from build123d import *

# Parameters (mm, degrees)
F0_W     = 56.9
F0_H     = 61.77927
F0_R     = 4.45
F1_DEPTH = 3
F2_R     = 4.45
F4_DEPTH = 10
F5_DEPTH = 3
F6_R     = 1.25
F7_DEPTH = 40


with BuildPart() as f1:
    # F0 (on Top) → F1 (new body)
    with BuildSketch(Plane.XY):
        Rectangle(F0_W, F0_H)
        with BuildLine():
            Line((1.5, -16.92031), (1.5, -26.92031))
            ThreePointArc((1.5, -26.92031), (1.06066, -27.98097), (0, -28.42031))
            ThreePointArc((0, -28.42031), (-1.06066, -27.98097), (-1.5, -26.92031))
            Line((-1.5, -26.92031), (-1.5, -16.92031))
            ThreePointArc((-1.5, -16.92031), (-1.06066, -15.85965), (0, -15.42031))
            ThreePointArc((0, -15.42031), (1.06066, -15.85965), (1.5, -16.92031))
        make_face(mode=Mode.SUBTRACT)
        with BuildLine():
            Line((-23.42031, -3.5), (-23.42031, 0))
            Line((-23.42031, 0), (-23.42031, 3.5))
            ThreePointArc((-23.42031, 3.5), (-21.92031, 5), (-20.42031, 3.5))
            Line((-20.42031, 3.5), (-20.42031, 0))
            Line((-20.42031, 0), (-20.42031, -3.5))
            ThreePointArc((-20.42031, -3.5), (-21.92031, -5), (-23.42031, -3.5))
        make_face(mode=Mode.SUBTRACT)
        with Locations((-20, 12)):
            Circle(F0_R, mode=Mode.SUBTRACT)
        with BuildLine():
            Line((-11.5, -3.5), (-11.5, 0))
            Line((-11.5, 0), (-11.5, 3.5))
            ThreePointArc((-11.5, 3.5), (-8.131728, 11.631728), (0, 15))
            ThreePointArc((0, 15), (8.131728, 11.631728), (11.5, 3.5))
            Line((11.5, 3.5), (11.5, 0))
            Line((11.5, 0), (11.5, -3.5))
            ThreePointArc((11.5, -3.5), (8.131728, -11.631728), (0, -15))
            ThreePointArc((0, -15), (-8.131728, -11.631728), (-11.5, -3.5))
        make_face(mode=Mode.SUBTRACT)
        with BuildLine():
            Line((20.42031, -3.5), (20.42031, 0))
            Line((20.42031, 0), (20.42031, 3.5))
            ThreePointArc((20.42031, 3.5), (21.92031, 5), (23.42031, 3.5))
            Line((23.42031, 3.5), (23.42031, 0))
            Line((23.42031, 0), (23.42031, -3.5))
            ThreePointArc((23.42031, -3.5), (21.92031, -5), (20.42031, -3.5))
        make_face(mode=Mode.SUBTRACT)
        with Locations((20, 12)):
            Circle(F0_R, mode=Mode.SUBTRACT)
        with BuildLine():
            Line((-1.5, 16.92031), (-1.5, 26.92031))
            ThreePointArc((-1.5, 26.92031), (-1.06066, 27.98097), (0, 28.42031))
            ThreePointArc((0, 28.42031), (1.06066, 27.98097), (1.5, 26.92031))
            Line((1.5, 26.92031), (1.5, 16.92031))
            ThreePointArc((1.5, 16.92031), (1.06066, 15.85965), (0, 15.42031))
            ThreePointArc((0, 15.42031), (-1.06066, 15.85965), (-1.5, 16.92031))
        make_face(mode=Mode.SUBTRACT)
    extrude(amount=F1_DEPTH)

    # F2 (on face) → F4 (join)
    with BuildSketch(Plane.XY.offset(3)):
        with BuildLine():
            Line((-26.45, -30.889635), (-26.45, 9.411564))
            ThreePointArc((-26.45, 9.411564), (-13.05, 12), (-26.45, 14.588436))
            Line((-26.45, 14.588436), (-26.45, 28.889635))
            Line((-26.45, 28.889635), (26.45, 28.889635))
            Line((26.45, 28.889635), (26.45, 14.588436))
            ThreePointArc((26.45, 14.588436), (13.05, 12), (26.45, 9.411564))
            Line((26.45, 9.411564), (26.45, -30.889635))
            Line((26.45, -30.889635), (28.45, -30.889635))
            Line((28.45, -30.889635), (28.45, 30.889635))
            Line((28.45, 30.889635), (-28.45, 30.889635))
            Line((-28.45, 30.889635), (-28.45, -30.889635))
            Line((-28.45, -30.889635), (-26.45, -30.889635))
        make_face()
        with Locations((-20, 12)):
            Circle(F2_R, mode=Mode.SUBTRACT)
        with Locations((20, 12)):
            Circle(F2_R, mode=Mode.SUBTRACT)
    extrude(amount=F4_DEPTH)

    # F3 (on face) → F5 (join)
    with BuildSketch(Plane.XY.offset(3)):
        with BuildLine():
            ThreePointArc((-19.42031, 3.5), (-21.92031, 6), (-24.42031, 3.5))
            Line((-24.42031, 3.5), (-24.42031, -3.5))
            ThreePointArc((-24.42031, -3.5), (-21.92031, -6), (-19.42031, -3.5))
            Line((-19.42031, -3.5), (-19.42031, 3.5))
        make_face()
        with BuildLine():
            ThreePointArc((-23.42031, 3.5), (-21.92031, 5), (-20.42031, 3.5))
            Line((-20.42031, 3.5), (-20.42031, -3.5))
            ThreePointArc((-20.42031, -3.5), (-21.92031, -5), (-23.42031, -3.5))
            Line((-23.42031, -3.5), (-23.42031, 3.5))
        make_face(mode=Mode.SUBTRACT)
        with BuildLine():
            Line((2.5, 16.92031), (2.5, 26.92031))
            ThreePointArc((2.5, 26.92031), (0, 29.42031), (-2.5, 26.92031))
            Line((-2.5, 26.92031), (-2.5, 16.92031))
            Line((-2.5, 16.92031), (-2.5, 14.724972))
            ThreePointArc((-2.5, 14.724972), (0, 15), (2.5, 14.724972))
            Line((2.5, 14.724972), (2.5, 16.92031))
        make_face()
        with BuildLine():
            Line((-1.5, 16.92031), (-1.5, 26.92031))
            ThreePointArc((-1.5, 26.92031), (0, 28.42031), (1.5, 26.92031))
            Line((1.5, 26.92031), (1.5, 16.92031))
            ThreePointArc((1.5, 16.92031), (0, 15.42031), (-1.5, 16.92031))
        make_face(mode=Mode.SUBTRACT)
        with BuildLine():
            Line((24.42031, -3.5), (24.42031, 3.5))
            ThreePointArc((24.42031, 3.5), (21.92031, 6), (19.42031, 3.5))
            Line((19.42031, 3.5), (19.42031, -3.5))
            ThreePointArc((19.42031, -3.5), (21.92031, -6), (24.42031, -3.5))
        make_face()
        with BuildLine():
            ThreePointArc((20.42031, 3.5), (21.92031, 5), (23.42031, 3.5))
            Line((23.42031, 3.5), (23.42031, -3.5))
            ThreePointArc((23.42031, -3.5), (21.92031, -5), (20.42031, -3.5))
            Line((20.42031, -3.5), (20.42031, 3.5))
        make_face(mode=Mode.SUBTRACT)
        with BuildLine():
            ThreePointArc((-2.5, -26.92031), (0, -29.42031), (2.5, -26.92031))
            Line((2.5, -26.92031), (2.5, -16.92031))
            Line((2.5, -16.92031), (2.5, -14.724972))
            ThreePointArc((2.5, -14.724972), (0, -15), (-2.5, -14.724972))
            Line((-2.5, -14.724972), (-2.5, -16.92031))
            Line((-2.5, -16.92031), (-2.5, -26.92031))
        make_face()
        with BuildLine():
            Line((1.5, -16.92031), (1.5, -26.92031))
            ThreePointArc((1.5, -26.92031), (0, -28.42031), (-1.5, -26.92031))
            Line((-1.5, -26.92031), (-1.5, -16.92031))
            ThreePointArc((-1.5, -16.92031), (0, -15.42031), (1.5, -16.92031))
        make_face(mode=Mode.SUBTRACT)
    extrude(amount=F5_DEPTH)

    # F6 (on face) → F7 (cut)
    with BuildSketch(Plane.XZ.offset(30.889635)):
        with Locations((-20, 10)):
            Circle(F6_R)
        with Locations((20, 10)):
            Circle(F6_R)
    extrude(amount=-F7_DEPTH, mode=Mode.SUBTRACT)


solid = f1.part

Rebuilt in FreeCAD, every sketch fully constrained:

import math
import FreeCAD as App
import Part
import Sketcher
from FreeCAD import Vector


def add_polygon(sketch, points):
    """Adds a closed chain of lines whose ends are joined by coincident constraints."""
    first, n = sketch.GeometryCount, len(points)
    for a, b in zip(points, points[1:] + points[:1]):
        sketch.addGeometry(Part.LineSegment(App.Vector(*a, 0), App.Vector(*b, 0)), False)
    for i in range(n):
        sketch.addConstraint(Sketcher.Constraint("Coincident", first + i, 2, first + (i + 1) % n, 1))

doc = App.newDocument("Part")
body = doc.addObject("PartDesign::Body", "Body")

sketch1 = body.newObject("Sketcher::SketchObject", "Sketch")
sketch1.AttachmentSupport = (doc.getObject("XY_Plane"), [""])
sketch1.MapMode = "FlatFace"
add_polygon(sketch1, [(-28.45, 30.889635), (-28.45, -30.889635), (28.45, -30.889635), (28.45, 30.889635)])
sketch1.addGeometry(Part.ArcOfCircle(Part.Circle(Vector(-0.000001, -16.920311, 0), Vector(0, 0, 1), 1.500001), math.radians(0.000022), math.radians(89.999978)), False)
sketch1.addGeometry(Part.LineSegment(Vector(1.5, -16.92031, 0), Vector(1.5, -26.92031, 0)), False)
sketch1.addGeometry(Part.ArcOfCircle(Part.Circle(Vector(-0.000001, -26.920309, 0), Vector(0, 0, 1), 1.500001), math.radians(-89.999978), math.radians(-0.000022)), False)
sketch1.addGeometry(Part.ArcOfCircle(Part.Circle(Vector(0.000001, -26.920309, 0), Vector(0, 0, 1), 1.500001), math.radians(-179.999978), math.radians(-90.000022)), False)
sketch1.addGeometry(Part.LineSegment(Vector(-1.5, -26.92031, 0), Vector(-1.5, -16.92031, 0)), False)
sketch1.addGeometry(Part.ArcOfCircle(Part.Circle(Vector(0.000001, -16.920311, 0), Vector(0, 0, 1), 1.500001), math.radians(90.000022), math.radians(179.999978)), False)
sketch1.addGeometry(Part.ArcOfCircle(Part.Circle(Vector(-21.92031, -3.5, 0), Vector(0, 0, 1), 1.5), math.radians(180), math.radians(360)), False)
sketch1.addGeometry(Part.LineSegment(Vector(-23.42031, -3.5, 0), Vector(-23.42031, 3.5, 0)), False)
sketch1.addGeometry(Part.ArcOfCircle(Part.Circle(Vector(-21.92031, 3.5, 0), Vector(0, 0, 1), 1.5), math.radians(0), math.radians(180)), False)
sketch1.addGeometry(Part.LineSegment(Vector(-20.42031, 3.5, 0), Vector(-20.42031, -3.5, 0)), False)
sketch1.addGeometry(Part.Circle(Vector(-20, 12, 0), Vector(0, 0, 1), 4.45), False)
sketch1.addGeometry(Part.ArcOfCircle(Part.Circle(Vector(0, -3.5, 0), Vector(0, 0, 1), 11.5), math.radians(180), math.radians(270)), False)
sketch1.addGeometry(Part.LineSegment(Vector(-11.5, -3.5, 0), Vector(-11.5, 3.5, 0)), False)
sketch1.addGeometry(Part.ArcOfCircle(Part.Circle(Vector(0, 3.5, 0), Vector(0, 0, 1), 11.5), math.radians(90), math.radians(180)), False)
sketch1.addGeometry(Part.ArcOfCircle(Part.Circle(Vector(0, 3.5, 0), Vector(0, 0, 1), 11.5), math.radians(0), math.radians(90)), False)
sketch1.addGeometry(Part.LineSegment(Vector(11.5, 3.5, 0), Vector(11.5, -3.5, 0)), False)
sketch1.addGeometry(Part.ArcOfCircle(Part.Circle(Vector(0, -3.5, 0), Vector(0, 0, 1), 11.5), math.radians(-90), math.radians(0)), False)
sketch1.addGeometry(Part.ArcOfCircle(Part.Circle(Vector(21.92031, -3.5, 0), Vector(0, 0, 1), 1.5), math.radians(180), math.radians(360)), False)
sketch1.addGeometry(Part.LineSegment(Vector(20.42031, -3.5, 0), Vector(20.42031, 3.5, 0)), False)
sketch1.addGeometry(Part.ArcOfCircle(Part.Circle(Vector(21.92031, 3.5, 0), Vector(0, 0, 1), 1.5), math.radians(0), math.radians(180)), False)
sketch1.addGeometry(Part.LineSegment(Vector(23.42031, 3.5, 0), Vector(23.42031, -3.5, 0)), False)
sketch1.addGeometry(Part.Circle(Vector(20, 12, 0), Vector(0, 0, 1), 4.45), False)
sketch1.addGeometry(Part.ArcOfCircle(Part.Circle(Vector(0.000001, 16.920311, 0), Vector(0, 0, 1), 1.500001), math.radians(-179.999978), math.radians(-90.000022)), False)
sketch1.addGeometry(Part.LineSegment(Vector(-1.5, 16.92031, 0), Vector(-1.5, 26.92031, 0)), False)
sketch1.addGeometry(Part.ArcOfCircle(Part.Circle(Vector(0.000001, 26.920309, 0), Vector(0, 0, 1), 1.500001), math.radians(90.000022), math.radians(179.999978)), False)
sketch1.addGeometry(Part.ArcOfCircle(Part.Circle(Vector(-0.000001, 26.920309, 0), Vector(0, 0, 1), 1.500001), math.radians(0.000022), math.radians(89.999978)), False)
sketch1.addGeometry(Part.LineSegment(Vector(1.5, 26.92031, 0), Vector(1.5, 16.92031, 0)), False)
sketch1.addGeometry(Part.ArcOfCircle(Part.Circle(Vector(-0.000001, 16.920311, 0), Vector(0, 0, 1), 1.500001), math.radians(-89.999978), math.radians(-0.000022)), False)
sketch1.addConstraint([
    Sketcher.Constraint("Tangent", 4, 1, 5, 1),
    Sketcher.Constraint("Tangent", 5, 2, 6, 2),
    Sketcher.Constraint("Tangent", 6, 1, 7, 2),
    Sketcher.Constraint("Tangent", 7, 1, 8, 1),
    Sketcher.Constraint("Tangent", 8, 2, 9, 2),
    Sketcher.Constraint("Tangent", 9, 1, 4, 2),
    Sketcher.Constraint("Tangent", 10, 1, 11, 1),
    Sketcher.Constraint("Tangent", 11, 2, 12, 2),
    Sketcher.Constraint("Tangent", 12, 1, 13, 1),
    Sketcher.Constraint("Tangent", 13, 2, 10, 2),
    Sketcher.Constraint("Tangent", 15, 1, 16, 1),
    Sketcher.Constraint("Tangent", 16, 2, 17, 2),
    Sketcher.Constraint("Tangent", 17, 1, 18, 2),
    Sketcher.Constraint("Tangent", 18, 1, 19, 1),
    Sketcher.Constraint("Tangent", 19, 2, 20, 2),
    Sketcher.Constraint("Tangent", 20, 1, 15, 2),
    Sketcher.Constraint("Tangent", 21, 1, 22, 1),
    Sketcher.Constraint("Tangent", 22, 2, 23, 2),
    Sketcher.Constraint("Tangent", 23, 1, 24, 1),
    Sketcher.Constraint("Tangent", 24, 2, 21, 2),
    Sketcher.Constraint("Tangent", 26, 1, 27, 1),
    Sketcher.Constraint("Tangent", 27, 2, 28, 2),
    Sketcher.Constraint("Tangent", 28, 1, 29, 2),
    Sketcher.Constraint("Tangent", 29, 1, 30, 1),
    Sketcher.Constraint("Tangent", 30, 2, 31, 2),
    Sketcher.Constraint("Tangent", 31, 1, 26, 2),
    Sketcher.Constraint("Vertical", 0),
    Sketcher.Constraint("Horizontal", 1),
    Sketcher.Constraint("Vertical", 2),
    Sketcher.Constraint("Horizontal", 3),
    Sketcher.Constraint("Vertical", 5),
    Sketcher.Constraint("Vertical", 8),
    Sketcher.Constraint("Vertical", 11),
    Sketcher.Constraint("Vertical", 13),
    Sketcher.Constraint("Vertical", 16),
    Sketcher.Constraint("Vertical", 19),
    Sketcher.Constraint("Vertical", 22),
    Sketcher.Constraint("Vertical", 24),
    Sketcher.Constraint("Vertical", 27),
    Sketcher.Constraint("Vertical", 30),
    Sketcher.Constraint("Equal", 4, 6),
    Sketcher.Constraint("Equal", 6, 7),
    Sketcher.Constraint("Equal", 9, 10),
    Sketcher.Constraint("Equal", 15, 17),
    Sketcher.Constraint("Equal", 17, 18),
    Sketcher.Constraint("Equal", 12, 21),
    Sketcher.Constraint("Equal", 14, 25),
    Sketcher.Constraint("Equal", 23, 26),
    Sketcher.Constraint("Equal", 26, 28),
    Sketcher.Constraint("Equal", 28, 29),
    Sketcher.Constraint("Symmetric", 15, 3, 17, 3, -1, 1),
    Sketcher.Constraint("Symmetric", 12, 3, 21, 3, -1, 1),
    Sketcher.Constraint("Symmetric", 4, 3, 26, 3, -1, 1),
    Sketcher.Constraint("Symmetric", 0, 2, 2, 2, -1, 1),
    Sketcher.Constraint("Symmetric", 6, 1, 28, 1, -1, 1),
    Sketcher.Constraint("Symmetric", 14, 3, 25, 3, -2),
    Sketcher.Constraint("PointOnObject", 4, 3, -2),
    Sketcher.Constraint("PointOnObject", 6, 1, -2),
    Sketcher.Constraint("PointOnObject", 9, 1, -2),
    Sketcher.Constraint("PointOnObject", 17, 1, -2),
    Sketcher.Constraint("PointOnObject", 20, 1, -2),
    Sketcher.Constraint("PointOnObject", 31, 1, -2),
    Sketcher.Constraint("Horizontal", 10, 3, 15, 3),
    Sketcher.Constraint("Horizontal", 12, 3, 17, 3),
    Sketcher.Constraint("Horizontal", 18, 3, 23, 3),
    Sketcher.Constraint("Diameter", 14, 8.9),
    Sketcher.Constraint("Radius", 4, 1.500001),
    Sketcher.Constraint("Radius", 15, 11.5),
    Sketcher.Constraint("DistanceY", 5, 2, 5, 1, 10.0),
    Sketcher.Constraint("DistanceY", 11, 1, 11, 2, 7.0),
    Sketcher.Constraint("DistanceX", 1, 1, 1, 2, 56.9),
    Sketcher.Constraint("DistanceX", 14, 3, -1, 1, 20.0),
    Sketcher.Constraint("DistanceY", -1, 1, 14, 3, 12.0),
    Sketcher.Constraint("DistanceY", 0, 2, 0, 1, 61.77927),
    Sketcher.Constraint("DistanceY", 4, 3, -1, 1, 16.920311),
    Sketcher.Constraint("DistanceX", 10, 3, -1, 1, 21.92031),
])
pad1 = body.newObject("PartDesign::Pad", "Pad")
pad1.Profile = sketch1
pad1.Length = 3

sketch2 = body.newObject("Sketcher::SketchObject", "Sketch001")
sketch2.AttachmentSupport = (doc.getObject("XY_Plane"), [""])
sketch2.MapMode = "FlatFace"
sketch2.AttachmentOffset = App.Placement(Vector(0, 0, 3), App.Rotation())
sketch2.addGeometry([
    Part.LineSegment(Vector(-26.45, -30.889635, 0), Vector(-26.45, 9.411564, 0)),
    Part.ArcOfCircle(Part.Circle(Vector(-20, 12, 0), Vector(0, 0, 1), 6.95), math.radians(-158.134018), math.radians(158.134018)),
    Part.LineSegment(Vector(-26.45, 14.588436, 0), Vector(-26.45, 28.889635, 0)),
    Part.LineSegment(Vector(-26.45, 28.889635, 0), Vector(26.45, 28.889635, 0)),
    Part.LineSegment(Vector(26.45, 28.889635, 0), Vector(26.45, 14.588436, 0)),
    Part.ArcOfCircle(Part.Circle(Vector(20, 12, 0), Vector(0, 0, 1), 6.95), math.radians(21.865982), math.radians(338.134018)),
    Part.LineSegment(Vector(26.45, 9.411564, 0), Vector(26.45, -30.889635, 0)),
    Part.LineSegment(Vector(26.45, -30.889635, 0), Vector(28.45, -30.889635, 0)),
    Part.LineSegment(Vector(28.45, -30.889635, 0), Vector(28.45, 30.889635, 0)),
    Part.LineSegment(Vector(28.45, 30.889635, 0), Vector(-28.45, 30.889635, 0)),
    Part.LineSegment(Vector(-28.45, 30.889635, 0), Vector(-28.45, -30.889635, 0)),
    Part.LineSegment(Vector(-28.45, -30.889635, 0), Vector(-26.45, -30.889635, 0)),
    Part.Circle(Vector(-20, 12, 0), Vector(0, 0, 1), 4.45),
    Part.Circle(Vector(20, 12, 0), Vector(0, 0, 1), 4.45),
], False)
sketch2.addConstraint([
    Sketcher.Constraint("Coincident", 0, 2, 1, 1),
    Sketcher.Constraint("Coincident", 1, 2, 2, 1),
    Sketcher.Constraint("Coincident", 2, 2, 3, 1),
    Sketcher.Constraint("Coincident", 3, 2, 4, 1),
    Sketcher.Constraint("Coincident", 4, 2, 5, 1),
    Sketcher.Constraint("Coincident", 5, 2, 6, 1),
    Sketcher.Constraint("Coincident", 6, 2, 7, 1),
    Sketcher.Constraint("Coincident", 7, 2, 8, 1),
    Sketcher.Constraint("Coincident", 8, 2, 9, 1),
    Sketcher.Constraint("Coincident", 9, 2, 10, 1),
    Sketcher.Constraint("Coincident", 10, 2, 11, 1),
    Sketcher.Constraint("Coincident", 11, 2, 0, 1),
    Sketcher.Constraint("Vertical", 0),
    Sketcher.Constraint("Vertical", 2),
    Sketcher.Constraint("Horizontal", 3),
    Sketcher.Constraint("Vertical", 4),
    Sketcher.Constraint("Vertical", 6),
    Sketcher.Constraint("Horizontal", 7),
    Sketcher.Constraint("Vertical", 8),
    Sketcher.Constraint("Horizontal", 9),
    Sketcher.Constraint("Vertical", 10),
    Sketcher.Constraint("Horizontal", 11),
    Sketcher.Constraint("Coincident", 12, 3, 1, 3),
    Sketcher.Constraint("Coincident", 13, 3, 5, 3),
    Sketcher.Constraint("Equal", 1, 5),
    Sketcher.Constraint("Equal", 12, 13),
    Sketcher.Constraint("Symmetric", 7, 2, 9, 2, -1, 1),
    Sketcher.Constraint("Symmetric", 1, 3, 5, 3, -2),
    Sketcher.Constraint("Symmetric", 6, 2, 11, 2, -2),
    Sketcher.Constraint("Horizontal", 1, 2, 4, 2),
    Sketcher.Constraint("Vertical", 0, 2, 1, 2),
    Sketcher.Constraint("Diameter", 12, 8.9),
    Sketcher.Constraint("DistanceX", 7, 1, 7, 2, 2.0),
    Sketcher.Constraint("Radius", 1, 6.95),
    Sketcher.Constraint("DistanceX", 3, 1, 3, 2, 52.9),
    Sketcher.Constraint("DistanceX", 1, 3, -1, 1, 20.0),
    Sketcher.Constraint("DistanceY", -1, 1, 1, 3, 12.0),
    Sketcher.Constraint("DistanceY", 3, 2, 8, 2, 2.0),
    Sketcher.Constraint("DistanceY", 0, 1, 0, 2, 40.301199),
])
pad2 = body.newObject("PartDesign::Pad", "Pad001")
pad2.Profile = sketch2
pad2.Length = 10

sketch3 = body.newObject("Sketcher::SketchObject", "Sketch002")
sketch3.AttachmentSupport = (doc.getObject("XY_Plane"), [""])
sketch3.MapMode = "FlatFace"
sketch3.AttachmentOffset = App.Placement(Vector(0, 0, 3), App.Rotation())
sketch3.addGeometry([
    Part.ArcOfCircle(Part.Circle(Vector(-21.92031, 3.5, 0), Vector(0, 0, 1), 2.5), math.radians(0), math.radians(180)),
    Part.LineSegment(Vector(-24.42031, 3.5, 0), Vector(-24.42031, -3.5, 0)),
    Part.ArcOfCircle(Part.Circle(Vector(-21.92031, -3.5, 0), Vector(0, 0, 1), 2.5), math.radians(180), math.radians(360)),
    Part.LineSegment(Vector(-19.42031, -3.5, 0), Vector(-19.42031, 3.5, 0)),
    Part.LineSegment(Vector(-23.42031, -3.5, 0), Vector(-23.42031, 3.5, 0)),
    Part.ArcOfCircle(Part.Circle(Vector(-21.92031, 3.5, 0), Vector(0, 0, 1), 1.5), math.radians(0), math.radians(180)),
    Part.LineSegment(Vector(-20.42031, 3.5, 0), Vector(-20.42031, -3.5, 0)),
    Part.ArcOfCircle(Part.Circle(Vector(-21.92031, -3.5, 0), Vector(0, 0, 1), 1.5), math.radians(180), math.radians(360)),
    Part.ArcOfCircle(Part.Circle(Vector(0, 26.92031, 0), Vector(0, 0, 1), 2.5), math.radians(0), math.radians(180)),
    Part.LineSegment(Vector(-2.5, 26.92031, 0), Vector(-2.5, 14.724972, 0)),
    Part.ArcOfCircle(Part.Circle(Vector(0, 3.500007, 0), Vector(0, 0, 1), 11.499993), math.radians(77.444135), math.radians(102.555865)),
    Part.LineSegment(Vector(2.5, 14.724972, 0), Vector(2.5, 26.92031, 0)),
    Part.ArcOfCircle(Part.Circle(Vector(0, 16.92031, 0), Vector(0, 0, 1), 1.5), math.radians(180), math.radians(360)),
    Part.LineSegment(Vector(-1.5, 16.92031, 0), Vector(-1.5, 26.92031, 0)),
    Part.ArcOfCircle(Part.Circle(Vector(0, 26.92031, 0), Vector(0, 0, 1), 1.5), math.radians(0), math.radians(180)),
    Part.LineSegment(Vector(1.5, 26.92031, 0), Vector(1.5, 16.92031, 0)),
    Part.LineSegment(Vector(24.42031, -3.5, 0), Vector(24.42031, 3.5, 0)),
    Part.ArcOfCircle(Part.Circle(Vector(21.92031, 3.5, 0), Vector(0, 0, 1), 2.5), math.radians(0), math.radians(180)),
    Part.LineSegment(Vector(19.42031, 3.5, 0), Vector(19.42031, -3.5, 0)),
    Part.ArcOfCircle(Part.Circle(Vector(21.92031, -3.5, 0), Vector(0, 0, 1), 2.5), math.radians(180), math.radians(360)),
    Part.LineSegment(Vector(20.42031, -3.5, 0), Vector(20.42031, 3.5, 0)),
    Part.ArcOfCircle(Part.Circle(Vector(21.92031, 3.5, 0), Vector(0, 0, 1), 1.5), math.radians(0), math.radians(180)),
    Part.LineSegment(Vector(23.42031, 3.5, 0), Vector(23.42031, -3.5, 0)),
    Part.ArcOfCircle(Part.Circle(Vector(21.92031, -3.5, 0), Vector(0, 0, 1), 1.5), math.radians(180), math.radians(360)),
    Part.ArcOfCircle(Part.Circle(Vector(0, -26.92031, 0), Vector(0, 0, 1), 2.5), math.radians(180), math.radians(360)),
    Part.LineSegment(Vector(2.5, -26.92031, 0), Vector(2.5, -14.724972, 0)),
    Part.ArcOfCircle(Part.Circle(Vector(0, -3.500007, 0), Vector(0, 0, 1), 11.499993), math.radians(-102.555865), math.radians(-77.444135)),
    Part.LineSegment(Vector(-2.5, -14.724972, 0), Vector(-2.5, -26.92031, 0)),
    Part.ArcOfCircle(Part.Circle(Vector(0, -16.92031, 0), Vector(0, 0, 1), 1.5), math.radians(0), math.radians(180)),
    Part.LineSegment(Vector(1.5, -16.92031, 0), Vector(1.5, -26.92031, 0)),
    Part.ArcOfCircle(Part.Circle(Vector(0, -26.92031, 0), Vector(0, 0, 1), 1.5), math.radians(180), math.radians(360)),
    Part.LineSegment(Vector(-1.5, -26.92031, 0), Vector(-1.5, -16.92031, 0)),
], False)
sketch3.addConstraint([
    Sketcher.Constraint("Tangent", 0, 2, 1, 1),
    Sketcher.Constraint("Tangent", 1, 2, 2, 1),
    Sketcher.Constraint("Tangent", 2, 2, 3, 1),
    Sketcher.Constraint("Tangent", 3, 2, 0, 1),
    Sketcher.Constraint("Tangent", 4, 2, 5, 2),
    Sketcher.Constraint("Tangent", 5, 1, 6, 1),
    Sketcher.Constraint("Tangent", 6, 2, 7, 2),
    Sketcher.Constraint("Tangent", 7, 1, 4, 1),
    Sketcher.Constraint("Tangent", 8, 2, 9, 1),
    Sketcher.Constraint("Coincident", 9, 2, 10, 2),
    Sketcher.Constraint("Coincident", 10, 1, 11, 1),
    Sketcher.Constraint("Tangent", 11, 2, 8, 1),
    Sketcher.Constraint("Tangent", 12, 1, 13, 1),
    Sketcher.Constraint("Tangent", 13, 2, 14, 2),
    Sketcher.Constraint("Tangent", 14, 1, 15, 1),
    Sketcher.Constraint("Tangent", 15, 2, 12, 2),
    Sketcher.Constraint("Tangent", 16, 2, 17, 1),
    Sketcher.Constraint("Tangent", 17, 2, 18, 1),
    Sketcher.Constraint("Tangent", 18, 2, 19, 1),
    Sketcher.Constraint("Tangent", 19, 2, 16, 1),
    Sketcher.Constraint("Tangent", 20, 2, 21, 2),
    Sketcher.Constraint("Tangent", 21, 1, 22, 1),
    Sketcher.Constraint("Tangent", 22, 2, 23, 2),
    Sketcher.Constraint("Tangent", 23, 1, 20, 1),
    Sketcher.Constraint("Tangent", 24, 2, 25, 1),
    Sketcher.Constraint("Coincident", 25, 2, 26, 2),
    Sketcher.Constraint("Coincident", 26, 1, 27, 1),
    Sketcher.Constraint("Tangent", 27, 2, 24, 1),
    Sketcher.Constraint("Tangent", 28, 1, 29, 1),
    Sketcher.Constraint("Tangent", 29, 2, 30, 2),
    Sketcher.Constraint("Tangent", 30, 1, 31, 1),
    Sketcher.Constraint("Tangent", 31, 2, 28, 2),
    Sketcher.Constraint("Vertical", 1),
    Sketcher.Constraint("Vertical", 3),
    Sketcher.Constraint("Vertical", 4),
    Sketcher.Constraint("Vertical", 6),
    Sketcher.Constraint("Vertical", 9),
    Sketcher.Constraint("Vertical", 11),
    Sketcher.Constraint("Vertical", 13),
    Sketcher.Constraint("Vertical", 15),
    Sketcher.Constraint("Vertical", 16),
    Sketcher.Constraint("Vertical", 18),
    Sketcher.Constraint("Vertical", 20),
    Sketcher.Constraint("Vertical", 22),
    Sketcher.Constraint("Vertical", 25),
    Sketcher.Constraint("Vertical", 27),
    Sketcher.Constraint("Vertical", 29),
    Sketcher.Constraint("Vertical", 31),
    Sketcher.Constraint("Coincident", 5, 3, 0, 3),
    Sketcher.Constraint("Coincident", 14, 3, 8, 3),
    Sketcher.Constraint("Coincident", 21, 3, 17, 3),
    Sketcher.Constraint("Coincident", 30, 3, 24, 3),
    Sketcher.Constraint("Equal", 2, 8),
    Sketcher.Constraint("Equal", 7, 12),
    Sketcher.Constraint("Equal", 8, 17),
    Sketcher.Constraint("Equal", 14, 21),
    Sketcher.Constraint("Equal", 19, 24),
    Sketcher.Constraint("Equal", 10, 26),
    Sketcher.Constraint("Equal", 23, 28),
    Sketcher.Constraint("Symmetric", 2, 3, 17, 3, -1, 1),
    Sketcher.Constraint("Symmetric", 8, 3, 24, 3, -1, 1),
    Sketcher.Constraint("Symmetric", 10, 3, 26, 3, -1, 1),
    Sketcher.Constraint("Symmetric", 9, 2, 10, 1, -2),
    Sketcher.Constraint("Horizontal", 5, 3, 17, 3),
    Sketcher.Constraint("Horizontal", 7, 3, 19, 3),
    Sketcher.Constraint("Horizontal", 7, 3, 23, 3),
    Sketcher.Constraint("Horizontal", 23, 3, 1, 2),
    Sketcher.Constraint("Equal", 15, 29),
    Sketcher.Constraint("Radius", 0, 2.5),
    Sketcher.Constraint("Radius", 5, 1.5),
    Sketcher.Constraint("DistanceY", 1, 2, 1, 1, 7.0),
    Sketcher.Constraint("DistanceY", 13, 1, 13, 2, 10.0),
    Sketcher.Constraint("Radius", 10, 11.499993),
    Sketcher.Constraint("DistanceY", 9, 2, 9, 1, 12.195338),
    Sketcher.Constraint("DistanceX", 0, 3, -1, 1, 21.92031),
    Sketcher.Constraint("DistanceY", -1, 1, 8, 3, 26.92031),
])
pad3 = body.newObject("PartDesign::Pad", "Pad002")
pad3.Profile = sketch3
pad3.Length = 3

sketch4 = body.newObject("Sketcher::SketchObject", "Sketch003")
sketch4.AttachmentSupport = (doc.getObject("XZ_Plane"), [""])
sketch4.MapMode = "FlatFace"
sketch4.AttachmentOffset = App.Placement(Vector(0, 0, 30.889635), App.Rotation())
sketch4.addGeometry([
    Part.Circle(Vector(-20, 10, 0), Vector(0, 0, 1), 1.25),
    Part.Circle(Vector(20, 10, 0), Vector(0, 0, 1), 1.25),
], False)
sketch4.addConstraint([
    Sketcher.Constraint("Equal", 0, 1),
    Sketcher.Constraint("Symmetric", 0, 3, 1, 3, -2),
    Sketcher.Constraint("Diameter", 0, 2.5),
    Sketcher.Constraint("DistanceX", 0, 3, -1, 1, 20.0),
    Sketcher.Constraint("DistanceY", -1, 1, 0, 3, 10.0),
])
pocket1 = body.newObject("PartDesign::Pocket", "Pocket")
pocket1.Profile = sketch4
pocket1.Length = 40

doc.recompute()
